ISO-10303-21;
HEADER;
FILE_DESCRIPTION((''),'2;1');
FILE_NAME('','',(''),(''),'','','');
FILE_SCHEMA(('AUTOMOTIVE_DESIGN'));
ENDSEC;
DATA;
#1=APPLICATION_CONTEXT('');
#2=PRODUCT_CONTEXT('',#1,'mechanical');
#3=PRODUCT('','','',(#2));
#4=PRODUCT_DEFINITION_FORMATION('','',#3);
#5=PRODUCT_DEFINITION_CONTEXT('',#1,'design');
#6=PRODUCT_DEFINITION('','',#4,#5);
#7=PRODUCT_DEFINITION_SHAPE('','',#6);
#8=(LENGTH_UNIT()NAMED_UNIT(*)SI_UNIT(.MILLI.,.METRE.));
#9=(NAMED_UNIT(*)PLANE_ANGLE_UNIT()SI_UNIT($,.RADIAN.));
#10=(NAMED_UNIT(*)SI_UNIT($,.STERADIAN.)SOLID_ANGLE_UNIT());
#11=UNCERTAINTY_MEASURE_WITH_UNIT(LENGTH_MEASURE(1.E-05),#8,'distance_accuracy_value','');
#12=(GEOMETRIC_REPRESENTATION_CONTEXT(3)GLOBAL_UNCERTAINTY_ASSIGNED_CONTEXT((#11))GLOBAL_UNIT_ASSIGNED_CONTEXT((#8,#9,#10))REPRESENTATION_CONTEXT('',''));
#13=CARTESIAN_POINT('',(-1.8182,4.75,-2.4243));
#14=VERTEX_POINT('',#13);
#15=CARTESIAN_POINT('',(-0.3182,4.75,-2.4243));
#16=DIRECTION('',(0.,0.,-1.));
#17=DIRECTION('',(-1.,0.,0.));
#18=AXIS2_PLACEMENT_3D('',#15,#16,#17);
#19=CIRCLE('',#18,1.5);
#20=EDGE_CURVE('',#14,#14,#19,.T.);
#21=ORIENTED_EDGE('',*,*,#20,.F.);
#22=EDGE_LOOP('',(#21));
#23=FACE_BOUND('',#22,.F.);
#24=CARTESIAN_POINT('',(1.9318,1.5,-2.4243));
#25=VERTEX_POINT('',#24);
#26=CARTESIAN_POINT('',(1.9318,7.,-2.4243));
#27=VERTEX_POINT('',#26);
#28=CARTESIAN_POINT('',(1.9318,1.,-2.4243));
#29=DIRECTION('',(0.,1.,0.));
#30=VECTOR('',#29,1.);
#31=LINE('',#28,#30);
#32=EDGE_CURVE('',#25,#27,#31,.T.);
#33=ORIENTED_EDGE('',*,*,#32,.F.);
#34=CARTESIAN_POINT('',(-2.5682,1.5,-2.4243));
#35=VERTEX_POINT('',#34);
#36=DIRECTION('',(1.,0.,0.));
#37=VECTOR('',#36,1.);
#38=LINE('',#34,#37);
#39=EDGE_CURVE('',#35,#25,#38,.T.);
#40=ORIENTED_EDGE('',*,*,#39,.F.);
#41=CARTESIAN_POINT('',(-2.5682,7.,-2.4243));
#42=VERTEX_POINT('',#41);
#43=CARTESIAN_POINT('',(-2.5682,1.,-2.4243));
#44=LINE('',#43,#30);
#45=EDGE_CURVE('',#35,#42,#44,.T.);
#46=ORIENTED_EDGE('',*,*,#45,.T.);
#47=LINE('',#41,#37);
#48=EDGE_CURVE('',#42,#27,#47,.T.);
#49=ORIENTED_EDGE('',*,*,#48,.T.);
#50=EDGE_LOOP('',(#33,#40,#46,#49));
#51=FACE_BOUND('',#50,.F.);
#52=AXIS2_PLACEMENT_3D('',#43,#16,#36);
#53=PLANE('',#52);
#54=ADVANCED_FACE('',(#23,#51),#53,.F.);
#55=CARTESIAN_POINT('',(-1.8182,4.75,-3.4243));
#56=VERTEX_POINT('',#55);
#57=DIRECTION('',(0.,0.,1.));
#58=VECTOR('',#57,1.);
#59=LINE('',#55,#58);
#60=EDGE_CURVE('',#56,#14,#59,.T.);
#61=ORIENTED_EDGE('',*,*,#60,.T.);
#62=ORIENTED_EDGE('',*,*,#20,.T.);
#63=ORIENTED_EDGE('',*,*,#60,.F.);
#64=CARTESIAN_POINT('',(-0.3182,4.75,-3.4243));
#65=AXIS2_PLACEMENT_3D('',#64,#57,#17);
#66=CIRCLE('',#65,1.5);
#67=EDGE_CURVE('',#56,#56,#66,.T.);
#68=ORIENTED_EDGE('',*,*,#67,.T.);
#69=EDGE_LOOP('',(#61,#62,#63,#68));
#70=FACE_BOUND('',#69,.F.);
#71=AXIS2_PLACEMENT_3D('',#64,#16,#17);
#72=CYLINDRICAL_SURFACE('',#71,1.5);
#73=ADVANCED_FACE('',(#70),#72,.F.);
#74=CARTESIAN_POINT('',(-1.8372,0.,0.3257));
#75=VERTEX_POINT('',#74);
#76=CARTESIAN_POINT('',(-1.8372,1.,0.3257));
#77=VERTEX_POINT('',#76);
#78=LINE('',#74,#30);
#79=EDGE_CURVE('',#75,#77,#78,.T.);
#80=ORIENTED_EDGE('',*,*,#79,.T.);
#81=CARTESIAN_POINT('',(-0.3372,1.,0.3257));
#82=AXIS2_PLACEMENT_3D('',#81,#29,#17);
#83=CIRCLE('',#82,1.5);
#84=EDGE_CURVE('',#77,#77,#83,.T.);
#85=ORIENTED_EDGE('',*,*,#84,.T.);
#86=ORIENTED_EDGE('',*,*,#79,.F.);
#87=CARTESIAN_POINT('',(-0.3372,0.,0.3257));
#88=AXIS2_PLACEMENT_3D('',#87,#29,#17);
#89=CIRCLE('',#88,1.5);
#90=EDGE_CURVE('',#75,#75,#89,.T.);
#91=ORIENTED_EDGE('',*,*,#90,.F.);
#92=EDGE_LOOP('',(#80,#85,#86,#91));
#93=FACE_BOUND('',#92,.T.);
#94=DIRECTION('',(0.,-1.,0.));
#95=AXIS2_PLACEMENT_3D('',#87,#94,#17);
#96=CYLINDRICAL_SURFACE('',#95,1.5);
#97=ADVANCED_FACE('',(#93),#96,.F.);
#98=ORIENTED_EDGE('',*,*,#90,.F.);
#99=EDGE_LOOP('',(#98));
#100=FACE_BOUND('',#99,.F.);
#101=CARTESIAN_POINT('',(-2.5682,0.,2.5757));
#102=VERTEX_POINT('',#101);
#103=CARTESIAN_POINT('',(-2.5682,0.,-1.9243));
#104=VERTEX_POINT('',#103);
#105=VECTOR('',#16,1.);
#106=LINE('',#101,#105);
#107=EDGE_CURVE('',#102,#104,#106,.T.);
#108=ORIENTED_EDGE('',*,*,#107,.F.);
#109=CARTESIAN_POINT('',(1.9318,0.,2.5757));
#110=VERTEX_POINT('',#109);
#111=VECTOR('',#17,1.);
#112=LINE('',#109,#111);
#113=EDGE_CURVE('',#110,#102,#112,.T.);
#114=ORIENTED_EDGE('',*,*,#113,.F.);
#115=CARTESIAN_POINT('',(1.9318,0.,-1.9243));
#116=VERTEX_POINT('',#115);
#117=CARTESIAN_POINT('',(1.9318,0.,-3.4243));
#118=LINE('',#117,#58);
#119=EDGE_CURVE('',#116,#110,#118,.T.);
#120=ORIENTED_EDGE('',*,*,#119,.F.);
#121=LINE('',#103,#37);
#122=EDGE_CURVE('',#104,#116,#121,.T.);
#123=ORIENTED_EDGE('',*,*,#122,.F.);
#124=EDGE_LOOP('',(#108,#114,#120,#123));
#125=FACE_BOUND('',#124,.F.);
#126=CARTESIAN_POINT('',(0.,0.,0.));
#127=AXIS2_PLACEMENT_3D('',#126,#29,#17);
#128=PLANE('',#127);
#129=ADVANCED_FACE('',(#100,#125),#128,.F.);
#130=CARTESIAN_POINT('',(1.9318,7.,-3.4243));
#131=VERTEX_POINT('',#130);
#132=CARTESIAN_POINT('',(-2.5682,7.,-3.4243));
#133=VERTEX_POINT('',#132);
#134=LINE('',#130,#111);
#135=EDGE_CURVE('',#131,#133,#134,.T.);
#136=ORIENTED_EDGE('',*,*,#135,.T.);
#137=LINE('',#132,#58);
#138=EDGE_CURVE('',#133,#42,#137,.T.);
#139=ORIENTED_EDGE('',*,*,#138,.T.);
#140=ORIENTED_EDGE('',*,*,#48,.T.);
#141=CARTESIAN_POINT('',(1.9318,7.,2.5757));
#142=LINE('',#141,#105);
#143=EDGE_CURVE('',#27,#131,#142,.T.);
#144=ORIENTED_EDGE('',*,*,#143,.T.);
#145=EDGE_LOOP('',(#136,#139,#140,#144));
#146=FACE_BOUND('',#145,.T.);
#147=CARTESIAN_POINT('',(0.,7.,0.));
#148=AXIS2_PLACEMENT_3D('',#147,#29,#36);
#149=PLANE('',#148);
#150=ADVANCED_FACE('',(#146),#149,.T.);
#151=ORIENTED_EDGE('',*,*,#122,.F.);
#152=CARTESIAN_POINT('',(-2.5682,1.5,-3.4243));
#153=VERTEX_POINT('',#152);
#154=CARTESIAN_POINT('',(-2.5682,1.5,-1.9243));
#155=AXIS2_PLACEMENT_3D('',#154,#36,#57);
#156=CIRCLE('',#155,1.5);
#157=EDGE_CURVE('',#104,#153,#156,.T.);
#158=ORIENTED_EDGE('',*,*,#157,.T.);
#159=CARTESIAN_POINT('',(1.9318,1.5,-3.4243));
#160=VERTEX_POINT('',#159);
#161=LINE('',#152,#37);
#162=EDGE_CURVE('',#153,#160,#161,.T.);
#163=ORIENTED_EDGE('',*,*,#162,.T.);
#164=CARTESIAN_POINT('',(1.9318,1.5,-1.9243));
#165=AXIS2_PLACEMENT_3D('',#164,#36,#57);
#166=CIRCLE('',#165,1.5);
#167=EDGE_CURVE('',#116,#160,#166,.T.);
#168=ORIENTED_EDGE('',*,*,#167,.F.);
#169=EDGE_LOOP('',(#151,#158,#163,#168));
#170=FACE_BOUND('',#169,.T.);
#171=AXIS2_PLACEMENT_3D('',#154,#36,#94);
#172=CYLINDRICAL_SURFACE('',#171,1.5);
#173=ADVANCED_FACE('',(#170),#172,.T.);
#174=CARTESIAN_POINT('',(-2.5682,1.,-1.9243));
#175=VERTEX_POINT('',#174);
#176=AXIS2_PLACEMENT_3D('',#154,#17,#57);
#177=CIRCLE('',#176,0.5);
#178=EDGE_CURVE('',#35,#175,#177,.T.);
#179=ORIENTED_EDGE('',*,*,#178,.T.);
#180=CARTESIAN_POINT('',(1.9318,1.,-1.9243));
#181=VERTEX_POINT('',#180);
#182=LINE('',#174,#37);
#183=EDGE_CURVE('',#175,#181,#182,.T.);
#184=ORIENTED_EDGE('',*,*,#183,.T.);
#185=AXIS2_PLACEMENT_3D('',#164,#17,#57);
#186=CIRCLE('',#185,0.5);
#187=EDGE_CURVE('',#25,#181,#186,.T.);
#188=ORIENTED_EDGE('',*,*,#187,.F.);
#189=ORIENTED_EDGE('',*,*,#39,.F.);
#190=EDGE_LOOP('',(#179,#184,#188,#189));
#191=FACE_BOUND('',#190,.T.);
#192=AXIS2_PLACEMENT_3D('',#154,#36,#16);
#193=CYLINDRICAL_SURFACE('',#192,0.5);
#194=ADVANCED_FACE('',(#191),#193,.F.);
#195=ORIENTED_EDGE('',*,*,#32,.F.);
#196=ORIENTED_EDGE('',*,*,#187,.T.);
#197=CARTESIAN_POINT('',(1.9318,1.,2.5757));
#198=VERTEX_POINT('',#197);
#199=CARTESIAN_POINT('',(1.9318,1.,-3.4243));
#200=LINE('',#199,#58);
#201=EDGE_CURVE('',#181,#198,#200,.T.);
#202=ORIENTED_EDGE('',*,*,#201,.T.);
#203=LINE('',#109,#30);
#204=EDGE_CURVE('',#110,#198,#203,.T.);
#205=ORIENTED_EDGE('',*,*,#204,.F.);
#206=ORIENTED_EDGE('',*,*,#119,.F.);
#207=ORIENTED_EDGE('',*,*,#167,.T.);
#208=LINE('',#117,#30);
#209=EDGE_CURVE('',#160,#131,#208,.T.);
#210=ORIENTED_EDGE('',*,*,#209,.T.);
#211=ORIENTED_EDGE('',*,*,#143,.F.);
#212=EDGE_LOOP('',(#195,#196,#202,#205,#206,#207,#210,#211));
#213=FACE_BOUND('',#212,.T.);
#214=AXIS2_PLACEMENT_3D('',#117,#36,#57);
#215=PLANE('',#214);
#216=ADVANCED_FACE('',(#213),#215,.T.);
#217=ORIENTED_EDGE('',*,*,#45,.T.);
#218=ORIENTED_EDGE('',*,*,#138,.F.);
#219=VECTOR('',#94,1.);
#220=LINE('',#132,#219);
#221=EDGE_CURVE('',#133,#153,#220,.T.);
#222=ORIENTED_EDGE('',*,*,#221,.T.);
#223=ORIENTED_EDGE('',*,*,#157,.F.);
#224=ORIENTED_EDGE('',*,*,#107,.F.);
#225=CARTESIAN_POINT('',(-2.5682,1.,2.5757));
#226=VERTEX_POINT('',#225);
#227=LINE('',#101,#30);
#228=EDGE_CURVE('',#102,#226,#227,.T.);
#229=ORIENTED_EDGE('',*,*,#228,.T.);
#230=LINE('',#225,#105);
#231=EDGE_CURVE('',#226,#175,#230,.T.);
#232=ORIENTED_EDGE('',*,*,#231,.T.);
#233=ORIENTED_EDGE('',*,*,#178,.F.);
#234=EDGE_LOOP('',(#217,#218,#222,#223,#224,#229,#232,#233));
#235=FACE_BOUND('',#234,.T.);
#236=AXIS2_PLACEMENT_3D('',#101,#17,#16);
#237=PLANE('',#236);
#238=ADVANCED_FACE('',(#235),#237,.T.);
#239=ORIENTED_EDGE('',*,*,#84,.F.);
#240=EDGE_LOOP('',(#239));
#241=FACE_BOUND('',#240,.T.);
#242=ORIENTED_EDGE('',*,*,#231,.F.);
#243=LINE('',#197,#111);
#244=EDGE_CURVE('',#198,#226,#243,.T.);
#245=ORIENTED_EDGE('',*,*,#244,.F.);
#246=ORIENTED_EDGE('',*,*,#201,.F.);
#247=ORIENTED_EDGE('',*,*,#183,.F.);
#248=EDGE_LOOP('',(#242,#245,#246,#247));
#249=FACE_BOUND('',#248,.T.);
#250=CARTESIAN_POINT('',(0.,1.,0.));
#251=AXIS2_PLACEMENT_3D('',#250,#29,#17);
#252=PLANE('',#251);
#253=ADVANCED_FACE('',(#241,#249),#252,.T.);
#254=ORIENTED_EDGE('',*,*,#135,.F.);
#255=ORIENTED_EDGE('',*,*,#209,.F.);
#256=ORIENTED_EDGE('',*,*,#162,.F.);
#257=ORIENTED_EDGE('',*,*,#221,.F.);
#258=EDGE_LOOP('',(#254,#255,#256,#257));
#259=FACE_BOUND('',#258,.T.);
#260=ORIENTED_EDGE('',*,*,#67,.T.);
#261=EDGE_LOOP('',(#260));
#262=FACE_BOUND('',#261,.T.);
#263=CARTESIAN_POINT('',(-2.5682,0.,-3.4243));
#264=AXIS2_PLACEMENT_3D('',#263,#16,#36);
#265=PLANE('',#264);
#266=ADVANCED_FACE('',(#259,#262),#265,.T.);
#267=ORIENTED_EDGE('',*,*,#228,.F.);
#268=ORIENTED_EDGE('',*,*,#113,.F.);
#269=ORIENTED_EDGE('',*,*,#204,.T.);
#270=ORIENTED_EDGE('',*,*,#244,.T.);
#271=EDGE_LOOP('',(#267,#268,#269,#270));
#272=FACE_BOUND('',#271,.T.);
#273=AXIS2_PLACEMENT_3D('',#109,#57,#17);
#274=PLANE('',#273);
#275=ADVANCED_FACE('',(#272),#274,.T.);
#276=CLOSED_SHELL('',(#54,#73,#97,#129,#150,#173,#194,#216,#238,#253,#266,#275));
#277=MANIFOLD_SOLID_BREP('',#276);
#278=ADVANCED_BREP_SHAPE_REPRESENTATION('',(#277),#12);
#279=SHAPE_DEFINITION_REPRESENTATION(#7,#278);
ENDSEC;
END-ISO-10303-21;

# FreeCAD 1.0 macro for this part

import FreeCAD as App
import Part
import Sketcher
Q = App.Units.Quantity


def edges_at(feature, points):
    """Names of the edges that pass closest to the given points."""
    edges = feature.Shape.Edges
    near = lambda p: min(range(len(edges)), key=lambda i: edges[i].distToShape(Part.Vertex(*p))[0])
    return sorted({f"Edge{near(p) + 1}" for p in points})

doc = App.newDocument("Part")
body = doc.addObject("PartDesign::Body", "Body")

sketch1 = doc.addObject("Sketcher::SketchObject", "Sketch")
body.addObject(sketch1)
sketch1.AttachmentSupport = (doc.XZ_Plane, [""])
sketch1.MapMode = "FlatFace"
sketch1.addGeometry([
    Part.LineSegment(App.Vector(-2.5682, 2.5757, 0), App.Vector(1.9318, 2.5757, 0)),
    Part.LineSegment(App.Vector(1.9318, 2.5757, 0), App.Vector(1.9318, -3.4243, 0)),
    Part.LineSegment(App.Vector(1.9318, -3.4243, 0), App.Vector(-2.5682, -3.4243, 0)),
    Part.LineSegment(App.Vector(-2.5682, -3.4243, 0), App.Vector(-2.5682, 2.5757, 0)),
    Part.Circle(App.Vector(-0.3372, 0.3257, 0), App.Vector(0, 0, 1), 1.5),
], False)
sketch1.addConstraint([
    Sketcher.Constraint("Coincident", 0, 2, 1, 1),
    Sketcher.Constraint("Coincident", 1, 2, 2, 1),
    Sketcher.Constraint("Coincident", 2, 2, 3, 1),
    Sketcher.Constraint("Coincident", 3, 2, 0, 1),
    Sketcher.Constraint("Horizontal", 0),
    Sketcher.Constraint("Vertical", 1),
    Sketcher.Constraint("Horizontal", 2),
    Sketcher.Constraint("Vertical", 3),
    Sketcher.Constraint("DistanceY", 1, 2, 1, 1, Q("6 mm")),
    Sketcher.Constraint("Diameter", 4, Q("3 mm")),
    Sketcher.Constraint("DistanceX", 0, 1, 0, 2, Q("4.5 mm")),
    Sketcher.Constraint("DistanceY", 4, 3, 0, 2, Q("2.25 mm")),
    Sketcher.Constraint("DistanceX", 4, 3, 0, 2, Q("2.269 mm")),
    Sketcher.Constraint("DistanceX", 4, 3, -1, 1, Q("0.3372 mm")),
    Sketcher.Constraint("DistanceY", -1, 1, 4, 3, Q("0.3257 mm")),
])
pad1 = doc.addObject("PartDesign::Pad", "Pad")
body.addObject(pad1)
pad1.Profile = sketch1
pad1.Length = 1
pad1.Reversed = True

sketch2 = doc.addObject("Sketcher::SketchObject", "Sketch001")
body.addObject(sketch2)
sketch2.AttachmentSupport = (doc.XZ_Plane, [""])
sketch2.MapMode = "FlatFace"
sketch2.AttachmentOffset = App.Placement(App.Vector(0, 0, -1), App.Rotation())
sketch2.addGeometry([
    Part.LineSegment(App.Vector(-2.5682, -3.4243, 0), App.Vector(-2.5682, -2.4243, 0)),
    Part.LineSegment(App.Vector(-2.5682, -2.4243, 0), App.Vector(1.9318, -2.4243, 0)),
    Part.LineSegment(App.Vector(1.9318, -2.4243, 0), App.Vector(1.9318, -3.4243, 0)),
    Part.LineSegment(App.Vector(1.9318, -3.4243, 0), App.Vector(-2.5682, -3.4243, 0)),
], False)
sketch2.addConstraint([
    Sketcher.Constraint("Coincident", 0, 2, 1, 1),
    Sketcher.Constraint("Coincident", 1, 2, 2, 1),
    Sketcher.Constraint("Coincident", 2, 2, 3, 1),
    Sketcher.Constraint("Coincident", 3, 2, 0, 1),
    Sketcher.Constraint("Vertical", 0),
    Sketcher.Constraint("Horizontal", 1),
    Sketcher.Constraint("Vertical", 2),
    Sketcher.Constraint("Horizontal", 3),
    Sketcher.Constraint("DistanceY", 0, 1, 0, 2, Q("1 mm")),
    Sketcher.Constraint("DistanceX", 1, 1, 1, 2, Q("4.5 mm")),
    Sketcher.Constraint("DistanceX", 0, 2, -1, 1, Q("2.5682 mm")),
    Sketcher.Constraint("DistanceY", 0, 2, -1, 1, Q("2.4243 mm")),
])
pad2 = doc.addObject("PartDesign::Pad", "Pad001")
body.addObject(pad2)
pad2.Profile = sketch2
pad2.Length = 6
pad2.Reversed = True
doc.recompute()

fillet = doc.addObject("PartDesign::Fillet", "Fillet")
body.addObject(fillet)
fillet.Base = (pad2, edges_at(pad2, [(-0.318, 0, -3.424)]))
fillet.Radius = 1.5

sketch3 = doc.addObject("Sketcher::SketchObject", "Sketch002")
body.addObject(sketch3)
sketch3.AttachmentSupport = (doc.XY_Plane, [""])
sketch3.MapMode = "FlatFace"
sketch3.AttachmentOffset = App.Placement(App.Vector(0, 0, -3.4243), App.Rotation())
sketch3.addGeometry(Part.Circle(App.Vector(-0.3182, 4.75, 0), App.Vector(0, 0, 1), 1.5), False)
sketch3.addConstraint([
    Sketcher.Constraint("Diameter", 0, Q("3 mm")),
    Sketcher.Constraint("DistanceY", -1, 1, 0, 3, Q("4.75 mm")),
    Sketcher.Constraint("DistanceX", 0, 3, -1, 1, Q("0.3182 mm")),
])
pocket1 = doc.addObject("PartDesign::Pocket", "Pocket")
body.addObject(pocket1)
pocket1.Profile = sketch3
pocket1.Length = 6
pocket1.Reversed = True
doc.recompute()

fillet2 = doc.addObject("PartDesign::Fillet", "Fillet001")
body.addObject(fillet2)
fillet2.Base = (pocket1, edges_at(pocket1, [(-0.318, 1, -2.424)]))
fillet2.Radius = 0.5

doc.recompute()
